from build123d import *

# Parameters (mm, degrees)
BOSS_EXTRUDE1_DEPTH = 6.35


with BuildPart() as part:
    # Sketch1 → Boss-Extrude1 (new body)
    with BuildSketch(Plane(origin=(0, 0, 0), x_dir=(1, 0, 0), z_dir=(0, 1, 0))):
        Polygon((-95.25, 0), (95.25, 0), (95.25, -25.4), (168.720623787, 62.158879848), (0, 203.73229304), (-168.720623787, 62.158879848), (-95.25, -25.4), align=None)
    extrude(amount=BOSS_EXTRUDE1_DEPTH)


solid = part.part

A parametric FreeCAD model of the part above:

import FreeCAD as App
import Part
import Sketcher
Q = App.Units.Quantity


def add_polygon(sketch, points):
    """Adds a closed chain of lines whose ends are joined by coincident constraints."""
    first, n = sketch.GeometryCount, len(points)
    for a, b in zip(points, points[1:] + points[:1]):
        sketch.addGeometry(Part.LineSegment(App.Vector(*a, 0), App.Vector(*b, 0)), False)
    for i in range(n):
        sketch.addConstraint(Sketcher.Constraint("Coincident", first + i, 2, first + (i + 1) % n, 1))

doc = App.newDocument("Part")
body = doc.addObject("PartDesign::Body", "Body")

sketch1 = body.newObject("Sketcher::SketchObject", "Sketch")
sketch1.AttachmentSupport = (doc.getObject("XZ_Plane"), [""])
sketch1.MapMode = "FlatFace"
add_polygon(sketch1, [(-95, 0), (95, 0), (95, 25), (169, -62), (0, -204), (-169, -62), (-95, 25)])
sketch1.addConstraint([
    Sketcher.Constraint("Horizontal", 0),
    Sketcher.Constraint("Vertical", 1),
    Sketcher.Constraint("Vertical", 6),
    Sketcher.Constraint("Symmetric", 0, 2, 6, 2, -1, 1),
    Sketcher.Constraint("Symmetric", 2, 2, 4, 2, -2),
    Sketcher.Constraint("PointOnObject", 3, 2, -2),
    Sketcher.Constraint("Perpendicular", 2, 3),
    Sketcher.Constraint("Perpendicular", 4, 5),
    Sketcher.Constraint("DistanceY", 1, 1, 1, 2, Q("1 in")),
    Sketcher.Constraint("DistanceX", 0, 1, 0, 2, Q("7.5 in")),
    Sketcher.Constraint("Angle", 2, Q("-50 deg")),
    Sketcher.Constraint("Distance", 2, Q("4.5 in")),
])
pad1 = body.newObject("PartDesign::Pad", "Pad")
pad1.Profile = sketch1
pad1.Length = Q("0.25 in")
pad1.Reversed = True

doc.recompute()
